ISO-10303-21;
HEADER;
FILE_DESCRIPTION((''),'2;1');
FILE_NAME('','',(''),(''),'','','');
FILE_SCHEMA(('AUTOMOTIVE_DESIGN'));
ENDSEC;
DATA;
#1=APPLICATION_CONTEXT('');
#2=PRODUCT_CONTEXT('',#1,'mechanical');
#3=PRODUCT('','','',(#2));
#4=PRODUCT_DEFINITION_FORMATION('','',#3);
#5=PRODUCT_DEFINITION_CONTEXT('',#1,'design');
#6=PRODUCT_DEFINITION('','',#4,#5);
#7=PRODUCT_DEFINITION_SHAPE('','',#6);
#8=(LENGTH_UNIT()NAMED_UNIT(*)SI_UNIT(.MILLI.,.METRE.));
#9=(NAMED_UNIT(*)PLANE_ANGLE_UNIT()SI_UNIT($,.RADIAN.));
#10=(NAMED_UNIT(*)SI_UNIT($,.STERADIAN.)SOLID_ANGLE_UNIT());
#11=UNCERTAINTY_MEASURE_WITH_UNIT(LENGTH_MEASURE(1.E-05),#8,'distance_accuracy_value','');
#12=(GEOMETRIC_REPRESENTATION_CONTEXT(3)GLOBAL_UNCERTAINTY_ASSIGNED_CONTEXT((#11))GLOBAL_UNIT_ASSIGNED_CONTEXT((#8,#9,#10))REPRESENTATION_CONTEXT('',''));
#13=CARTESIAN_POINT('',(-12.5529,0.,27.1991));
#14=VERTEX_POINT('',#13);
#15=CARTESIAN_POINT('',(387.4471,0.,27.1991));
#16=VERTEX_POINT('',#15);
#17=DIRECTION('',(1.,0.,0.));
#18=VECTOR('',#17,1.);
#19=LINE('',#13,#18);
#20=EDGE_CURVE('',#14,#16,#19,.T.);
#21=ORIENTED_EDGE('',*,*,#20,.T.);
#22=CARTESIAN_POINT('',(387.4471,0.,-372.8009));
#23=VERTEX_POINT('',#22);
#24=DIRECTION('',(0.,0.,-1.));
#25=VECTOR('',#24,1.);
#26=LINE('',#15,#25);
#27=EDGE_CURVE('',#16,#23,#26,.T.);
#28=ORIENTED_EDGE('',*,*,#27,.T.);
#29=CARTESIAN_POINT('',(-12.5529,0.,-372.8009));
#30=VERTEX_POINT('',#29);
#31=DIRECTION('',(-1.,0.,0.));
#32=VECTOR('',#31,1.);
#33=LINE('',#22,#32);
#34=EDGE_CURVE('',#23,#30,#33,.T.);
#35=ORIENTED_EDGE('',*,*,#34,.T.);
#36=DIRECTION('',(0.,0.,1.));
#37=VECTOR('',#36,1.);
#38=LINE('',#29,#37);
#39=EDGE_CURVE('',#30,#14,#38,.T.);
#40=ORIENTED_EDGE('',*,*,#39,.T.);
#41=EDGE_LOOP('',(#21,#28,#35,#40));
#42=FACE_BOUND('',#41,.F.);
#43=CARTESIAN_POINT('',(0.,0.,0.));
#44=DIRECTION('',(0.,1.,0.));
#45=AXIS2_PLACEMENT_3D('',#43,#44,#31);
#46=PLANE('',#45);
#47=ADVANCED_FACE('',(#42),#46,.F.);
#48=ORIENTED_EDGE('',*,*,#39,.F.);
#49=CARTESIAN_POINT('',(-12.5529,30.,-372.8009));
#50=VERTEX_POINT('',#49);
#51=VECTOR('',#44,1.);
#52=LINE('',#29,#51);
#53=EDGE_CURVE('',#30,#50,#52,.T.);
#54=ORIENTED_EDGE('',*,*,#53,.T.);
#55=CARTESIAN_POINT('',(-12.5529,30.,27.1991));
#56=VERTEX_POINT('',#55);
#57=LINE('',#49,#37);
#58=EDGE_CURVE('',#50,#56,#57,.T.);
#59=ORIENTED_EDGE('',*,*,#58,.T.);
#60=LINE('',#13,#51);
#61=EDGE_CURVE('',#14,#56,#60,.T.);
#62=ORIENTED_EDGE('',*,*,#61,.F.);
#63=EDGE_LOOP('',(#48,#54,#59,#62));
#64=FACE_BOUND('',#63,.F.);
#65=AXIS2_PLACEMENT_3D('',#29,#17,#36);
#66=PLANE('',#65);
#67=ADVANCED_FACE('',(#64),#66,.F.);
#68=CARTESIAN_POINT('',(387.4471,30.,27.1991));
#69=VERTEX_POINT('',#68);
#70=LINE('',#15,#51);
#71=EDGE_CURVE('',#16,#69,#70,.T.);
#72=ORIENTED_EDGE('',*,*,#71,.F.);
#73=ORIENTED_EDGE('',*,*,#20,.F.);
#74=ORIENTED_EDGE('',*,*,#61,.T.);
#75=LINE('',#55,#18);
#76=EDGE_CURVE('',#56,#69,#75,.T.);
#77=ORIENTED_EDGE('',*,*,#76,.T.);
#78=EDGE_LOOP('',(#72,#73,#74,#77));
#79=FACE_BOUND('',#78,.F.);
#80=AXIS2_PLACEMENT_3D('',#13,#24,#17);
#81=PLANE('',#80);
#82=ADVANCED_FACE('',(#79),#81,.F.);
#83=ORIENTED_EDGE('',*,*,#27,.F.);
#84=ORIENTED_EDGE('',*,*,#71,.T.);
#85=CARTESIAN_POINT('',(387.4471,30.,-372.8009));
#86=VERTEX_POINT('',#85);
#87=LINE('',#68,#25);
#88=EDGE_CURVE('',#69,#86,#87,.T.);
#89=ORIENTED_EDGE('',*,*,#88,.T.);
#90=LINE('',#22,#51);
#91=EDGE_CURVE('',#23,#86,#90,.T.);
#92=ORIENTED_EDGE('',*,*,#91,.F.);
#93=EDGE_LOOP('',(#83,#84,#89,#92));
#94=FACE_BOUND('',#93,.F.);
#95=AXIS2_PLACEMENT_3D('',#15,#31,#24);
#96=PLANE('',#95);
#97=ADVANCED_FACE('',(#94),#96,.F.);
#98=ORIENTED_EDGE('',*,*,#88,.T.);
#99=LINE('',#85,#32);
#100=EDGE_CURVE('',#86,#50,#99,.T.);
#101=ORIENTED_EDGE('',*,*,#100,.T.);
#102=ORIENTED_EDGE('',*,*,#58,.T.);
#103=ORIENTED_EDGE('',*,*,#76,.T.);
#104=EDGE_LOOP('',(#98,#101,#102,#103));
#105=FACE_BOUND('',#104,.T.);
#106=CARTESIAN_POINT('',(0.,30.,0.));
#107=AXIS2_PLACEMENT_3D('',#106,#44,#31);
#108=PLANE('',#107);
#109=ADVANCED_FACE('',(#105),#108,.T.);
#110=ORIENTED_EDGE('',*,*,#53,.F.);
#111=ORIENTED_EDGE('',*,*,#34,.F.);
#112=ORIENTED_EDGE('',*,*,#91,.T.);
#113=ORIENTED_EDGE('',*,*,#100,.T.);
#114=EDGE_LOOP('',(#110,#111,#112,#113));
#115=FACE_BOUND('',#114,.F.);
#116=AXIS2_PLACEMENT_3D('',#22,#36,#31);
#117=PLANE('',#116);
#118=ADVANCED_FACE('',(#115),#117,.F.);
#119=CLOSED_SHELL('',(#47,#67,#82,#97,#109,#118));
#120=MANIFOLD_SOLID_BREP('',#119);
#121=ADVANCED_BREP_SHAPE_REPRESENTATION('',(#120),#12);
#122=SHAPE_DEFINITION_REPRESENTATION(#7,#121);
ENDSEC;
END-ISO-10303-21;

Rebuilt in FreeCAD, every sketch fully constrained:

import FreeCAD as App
import Part
import Sketcher
from FreeCAD import Vector

doc = App.newDocument("Part")
body = doc.addObject("PartDesign::Body", "Body")

# Sketch on XZ plane
sketch1 = body.newObject("Sketcher::SketchObject", "Sketch")
sketch1.AttachmentSupport = (doc.getObject("XZ_Plane"), [""])
sketch1.MapMode = "FlatFace"
sketch1.addGeometry([
    Part.LineSegment(Vector(-13, -373, 0), Vector(-13, 27, 0)),
    Part.LineSegment(Vector(-13, 27, 0), Vector(387, 27, 0)),
    Part.LineSegment(Vector(387, 27, 0), Vector(387, -373, 0)),
    Part.LineSegment(Vector(387, -373, 0), Vector(-13, -373, 0)),
], False)
sketch1.addConstraint([
    Sketcher.Constraint("Coincident", 0, 2, 1, 1),
    Sketcher.Constraint("Coincident", 1, 2, 2, 1),
    Sketcher.Constraint("Coincident", 2, 2, 3, 1),
    Sketcher.Constraint("Coincident", 3, 2, 0, 1),
    Sketcher.Constraint("Vertical", 0),
    Sketcher.Constraint("Horizontal", 1),
    Sketcher.Constraint("Vertical", 2),
    Sketcher.Constraint("Horizontal", 3),
    Sketcher.Constraint("Equal", 3, 0),
    Sketcher.Constraint("DistanceX", 1, 1, 1, 2, 400.0),
    Sketcher.Constraint("DistanceX", 0, 2, -1, 1, 12.553),
    Sketcher.Constraint("DistanceY", -1, 1, 0, 2, 27.199),
])
pad1 = body.newObject("PartDesign::Pad", "Pad")
pad1.Profile = sketch1
pad1.Length = 30
pad1.Reversed = True

doc.recompute()
